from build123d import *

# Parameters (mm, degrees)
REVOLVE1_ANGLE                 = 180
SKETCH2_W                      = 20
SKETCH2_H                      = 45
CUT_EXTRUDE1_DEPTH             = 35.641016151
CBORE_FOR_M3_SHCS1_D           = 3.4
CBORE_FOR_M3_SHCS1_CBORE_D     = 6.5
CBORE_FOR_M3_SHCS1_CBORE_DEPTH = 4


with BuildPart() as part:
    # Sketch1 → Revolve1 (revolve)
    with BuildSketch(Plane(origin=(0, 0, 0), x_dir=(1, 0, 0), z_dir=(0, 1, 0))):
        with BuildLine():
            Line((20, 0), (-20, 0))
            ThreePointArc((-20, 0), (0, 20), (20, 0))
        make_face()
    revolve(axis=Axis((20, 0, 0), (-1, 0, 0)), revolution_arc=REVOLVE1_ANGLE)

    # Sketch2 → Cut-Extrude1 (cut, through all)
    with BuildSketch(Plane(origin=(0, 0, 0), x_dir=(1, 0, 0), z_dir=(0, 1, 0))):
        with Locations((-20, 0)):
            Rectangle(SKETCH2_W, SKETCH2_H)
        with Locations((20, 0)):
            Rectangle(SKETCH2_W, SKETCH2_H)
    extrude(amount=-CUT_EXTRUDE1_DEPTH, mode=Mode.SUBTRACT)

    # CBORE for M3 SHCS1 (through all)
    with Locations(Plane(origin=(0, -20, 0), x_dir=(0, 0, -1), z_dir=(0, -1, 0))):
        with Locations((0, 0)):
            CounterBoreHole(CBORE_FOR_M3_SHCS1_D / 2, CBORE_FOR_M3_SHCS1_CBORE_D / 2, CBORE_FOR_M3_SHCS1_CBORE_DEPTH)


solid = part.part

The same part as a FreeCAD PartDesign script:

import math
import FreeCAD as App
import Part
import Sketcher


def add_polygon(sketch, points):
    """Adds a closed chain of lines whose ends are joined by coincident constraints."""
    first, n = sketch.GeometryCount, len(points)
    for a, b in zip(points, points[1:] + points[:1]):
        sketch.addGeometry(Part.LineSegment(App.Vector(*a, 0), App.Vector(*b, 0)), False)
    for i in range(n):
        sketch.addConstraint(Sketcher.Constraint("Coincident", first + i, 2, first + (i + 1) % n, 1))

doc = App.newDocument("Part")
body = doc.addObject("PartDesign::Body", "Body")

# Sketch on XZ plane
sketch1 = body.newObject("Sketcher::SketchObject", "Sketch")
sketch1.AttachmentSupport = (doc.getObject("XZ_Plane"), [""])
sketch1.MapMode = "FlatFace"
sketch1.addGeometry(Part.LineSegment(App.Vector(-20, 0, 0), App.Vector(20, 0, 0)), False)
sketch1.addGeometry(Part.ArcOfCircle(Part.Circle(App.Vector(0, 0, 0), App.Vector(0, 0, 1), 20), math.radians(180), math.radians(360)), False)
sketch1.addConstraint(Sketcher.Constraint("Coincident", 0, 1, 1, 1))
sketch1.addConstraint(Sketcher.Constraint("Coincident", 1, 2, 0, 2))
sketch1.addConstraint(Sketcher.Constraint("Horizontal", 0))
sketch1.addConstraint(Sketcher.Constraint("Coincident", 1, 3, -1, 1))
sketch1.addConstraint(Sketcher.Constraint("PointOnObject", 0, 1, -1))
sketch1.addConstraint(Sketcher.Constraint("Radius", 1, 20.0))
revolution = body.newObject("PartDesign::Revolution", "Revolution")
revolution.Profile = sketch1
revolution.ReferenceAxis = (sketch1, ["H_Axis"])
revolution.Angle = 180
revolution.Reversed = True

# Sketch on XZ plane
sketch2 = body.newObject("Sketcher::SketchObject", "Sketch001")
sketch2.AttachmentSupport = (doc.getObject("XZ_Plane"), [""])
sketch2.MapMode = "FlatFace"
add_polygon(sketch2, [(-30, -22.5), (-30, 22.5), (-10, 22.5), (-10, -22.5)])  # lines 0-3
add_polygon(sketch2, [(10, -22.5), (10, 22.5), (30, 22.5), (30, -22.5)])  # lines 4-7
sketch2.addConstraint(Sketcher.Constraint("Vertical", 0))
sketch2.addConstraint(Sketcher.Constraint("Horizontal", 1))
sketch2.addConstraint(Sketcher.Constraint("Vertical", 2))
sketch2.addConstraint(Sketcher.Constraint("Horizontal", 3))
sketch2.addConstraint(Sketcher.Constraint("Vertical", 4))
sketch2.addConstraint(Sketcher.Constraint("Horizontal", 5))
sketch2.addConstraint(Sketcher.Constraint("Vertical", 6))
sketch2.addConstraint(Sketcher.Constraint("Horizontal", 7))
sketch2.addConstraint(Sketcher.Constraint("Symmetric", 2, 2, 4, 2, -1, 1))
sketch2.addConstraint(Sketcher.Constraint("Symmetric", 0, 2, 6, 2, -1, 1))
sketch2.addConstraint(Sketcher.Constraint("Horizontal", 1, 2, 4, 2))
sketch2.addConstraint(Sketcher.Constraint("DistanceX", 1, 1, 1, 2, 20.0))
sketch2.addConstraint(Sketcher.Constraint("DistanceY", 0, 1, 0, 2, 45.0))
sketch2.addConstraint(Sketcher.Constraint("DistanceX", 0, 2, -1, 1, 30.0))
pocket1 = body.newObject("PartDesign::Pocket", "Pocket")
pocket1.Profile = sketch2
pocket1.Type = "ThroughAll"
pocket1.Reversed = True

# Sketch on XZ plane
sketch3 = body.newObject("Sketcher::SketchObject", "Sketch002")
sketch3.AttachmentSupport = (doc.getObject("XZ_Plane"), [""])
sketch3.MapMode = "FlatFace"
sketch3.AttachmentOffset = App.Placement(App.Vector(0, 0, 20), App.Rotation())
sketch3.addGeometry(Part.Circle(App.Vector(0, 0, 0), App.Vector(0, 0, 1), 1.7), False)
sketch3.addConstraint(Sketcher.Constraint("Coincident", 0, 3, -1, 1))
sketch3.addConstraint(Sketcher.Constraint("Diameter", 0, 3.4))
doc.recompute()
hole = body.newObject("PartDesign::Hole", "Hole")
hole.Profile = sketch3
hole.ThreadType = "None"
hole.Diameter = 3.4
hole.DepthType = "ThroughAll"
hole.HoleCutType = "Counterbore"
hole.HoleCutDiameter = 6.5
hole.HoleCutDepth = 4

doc.recompute()
